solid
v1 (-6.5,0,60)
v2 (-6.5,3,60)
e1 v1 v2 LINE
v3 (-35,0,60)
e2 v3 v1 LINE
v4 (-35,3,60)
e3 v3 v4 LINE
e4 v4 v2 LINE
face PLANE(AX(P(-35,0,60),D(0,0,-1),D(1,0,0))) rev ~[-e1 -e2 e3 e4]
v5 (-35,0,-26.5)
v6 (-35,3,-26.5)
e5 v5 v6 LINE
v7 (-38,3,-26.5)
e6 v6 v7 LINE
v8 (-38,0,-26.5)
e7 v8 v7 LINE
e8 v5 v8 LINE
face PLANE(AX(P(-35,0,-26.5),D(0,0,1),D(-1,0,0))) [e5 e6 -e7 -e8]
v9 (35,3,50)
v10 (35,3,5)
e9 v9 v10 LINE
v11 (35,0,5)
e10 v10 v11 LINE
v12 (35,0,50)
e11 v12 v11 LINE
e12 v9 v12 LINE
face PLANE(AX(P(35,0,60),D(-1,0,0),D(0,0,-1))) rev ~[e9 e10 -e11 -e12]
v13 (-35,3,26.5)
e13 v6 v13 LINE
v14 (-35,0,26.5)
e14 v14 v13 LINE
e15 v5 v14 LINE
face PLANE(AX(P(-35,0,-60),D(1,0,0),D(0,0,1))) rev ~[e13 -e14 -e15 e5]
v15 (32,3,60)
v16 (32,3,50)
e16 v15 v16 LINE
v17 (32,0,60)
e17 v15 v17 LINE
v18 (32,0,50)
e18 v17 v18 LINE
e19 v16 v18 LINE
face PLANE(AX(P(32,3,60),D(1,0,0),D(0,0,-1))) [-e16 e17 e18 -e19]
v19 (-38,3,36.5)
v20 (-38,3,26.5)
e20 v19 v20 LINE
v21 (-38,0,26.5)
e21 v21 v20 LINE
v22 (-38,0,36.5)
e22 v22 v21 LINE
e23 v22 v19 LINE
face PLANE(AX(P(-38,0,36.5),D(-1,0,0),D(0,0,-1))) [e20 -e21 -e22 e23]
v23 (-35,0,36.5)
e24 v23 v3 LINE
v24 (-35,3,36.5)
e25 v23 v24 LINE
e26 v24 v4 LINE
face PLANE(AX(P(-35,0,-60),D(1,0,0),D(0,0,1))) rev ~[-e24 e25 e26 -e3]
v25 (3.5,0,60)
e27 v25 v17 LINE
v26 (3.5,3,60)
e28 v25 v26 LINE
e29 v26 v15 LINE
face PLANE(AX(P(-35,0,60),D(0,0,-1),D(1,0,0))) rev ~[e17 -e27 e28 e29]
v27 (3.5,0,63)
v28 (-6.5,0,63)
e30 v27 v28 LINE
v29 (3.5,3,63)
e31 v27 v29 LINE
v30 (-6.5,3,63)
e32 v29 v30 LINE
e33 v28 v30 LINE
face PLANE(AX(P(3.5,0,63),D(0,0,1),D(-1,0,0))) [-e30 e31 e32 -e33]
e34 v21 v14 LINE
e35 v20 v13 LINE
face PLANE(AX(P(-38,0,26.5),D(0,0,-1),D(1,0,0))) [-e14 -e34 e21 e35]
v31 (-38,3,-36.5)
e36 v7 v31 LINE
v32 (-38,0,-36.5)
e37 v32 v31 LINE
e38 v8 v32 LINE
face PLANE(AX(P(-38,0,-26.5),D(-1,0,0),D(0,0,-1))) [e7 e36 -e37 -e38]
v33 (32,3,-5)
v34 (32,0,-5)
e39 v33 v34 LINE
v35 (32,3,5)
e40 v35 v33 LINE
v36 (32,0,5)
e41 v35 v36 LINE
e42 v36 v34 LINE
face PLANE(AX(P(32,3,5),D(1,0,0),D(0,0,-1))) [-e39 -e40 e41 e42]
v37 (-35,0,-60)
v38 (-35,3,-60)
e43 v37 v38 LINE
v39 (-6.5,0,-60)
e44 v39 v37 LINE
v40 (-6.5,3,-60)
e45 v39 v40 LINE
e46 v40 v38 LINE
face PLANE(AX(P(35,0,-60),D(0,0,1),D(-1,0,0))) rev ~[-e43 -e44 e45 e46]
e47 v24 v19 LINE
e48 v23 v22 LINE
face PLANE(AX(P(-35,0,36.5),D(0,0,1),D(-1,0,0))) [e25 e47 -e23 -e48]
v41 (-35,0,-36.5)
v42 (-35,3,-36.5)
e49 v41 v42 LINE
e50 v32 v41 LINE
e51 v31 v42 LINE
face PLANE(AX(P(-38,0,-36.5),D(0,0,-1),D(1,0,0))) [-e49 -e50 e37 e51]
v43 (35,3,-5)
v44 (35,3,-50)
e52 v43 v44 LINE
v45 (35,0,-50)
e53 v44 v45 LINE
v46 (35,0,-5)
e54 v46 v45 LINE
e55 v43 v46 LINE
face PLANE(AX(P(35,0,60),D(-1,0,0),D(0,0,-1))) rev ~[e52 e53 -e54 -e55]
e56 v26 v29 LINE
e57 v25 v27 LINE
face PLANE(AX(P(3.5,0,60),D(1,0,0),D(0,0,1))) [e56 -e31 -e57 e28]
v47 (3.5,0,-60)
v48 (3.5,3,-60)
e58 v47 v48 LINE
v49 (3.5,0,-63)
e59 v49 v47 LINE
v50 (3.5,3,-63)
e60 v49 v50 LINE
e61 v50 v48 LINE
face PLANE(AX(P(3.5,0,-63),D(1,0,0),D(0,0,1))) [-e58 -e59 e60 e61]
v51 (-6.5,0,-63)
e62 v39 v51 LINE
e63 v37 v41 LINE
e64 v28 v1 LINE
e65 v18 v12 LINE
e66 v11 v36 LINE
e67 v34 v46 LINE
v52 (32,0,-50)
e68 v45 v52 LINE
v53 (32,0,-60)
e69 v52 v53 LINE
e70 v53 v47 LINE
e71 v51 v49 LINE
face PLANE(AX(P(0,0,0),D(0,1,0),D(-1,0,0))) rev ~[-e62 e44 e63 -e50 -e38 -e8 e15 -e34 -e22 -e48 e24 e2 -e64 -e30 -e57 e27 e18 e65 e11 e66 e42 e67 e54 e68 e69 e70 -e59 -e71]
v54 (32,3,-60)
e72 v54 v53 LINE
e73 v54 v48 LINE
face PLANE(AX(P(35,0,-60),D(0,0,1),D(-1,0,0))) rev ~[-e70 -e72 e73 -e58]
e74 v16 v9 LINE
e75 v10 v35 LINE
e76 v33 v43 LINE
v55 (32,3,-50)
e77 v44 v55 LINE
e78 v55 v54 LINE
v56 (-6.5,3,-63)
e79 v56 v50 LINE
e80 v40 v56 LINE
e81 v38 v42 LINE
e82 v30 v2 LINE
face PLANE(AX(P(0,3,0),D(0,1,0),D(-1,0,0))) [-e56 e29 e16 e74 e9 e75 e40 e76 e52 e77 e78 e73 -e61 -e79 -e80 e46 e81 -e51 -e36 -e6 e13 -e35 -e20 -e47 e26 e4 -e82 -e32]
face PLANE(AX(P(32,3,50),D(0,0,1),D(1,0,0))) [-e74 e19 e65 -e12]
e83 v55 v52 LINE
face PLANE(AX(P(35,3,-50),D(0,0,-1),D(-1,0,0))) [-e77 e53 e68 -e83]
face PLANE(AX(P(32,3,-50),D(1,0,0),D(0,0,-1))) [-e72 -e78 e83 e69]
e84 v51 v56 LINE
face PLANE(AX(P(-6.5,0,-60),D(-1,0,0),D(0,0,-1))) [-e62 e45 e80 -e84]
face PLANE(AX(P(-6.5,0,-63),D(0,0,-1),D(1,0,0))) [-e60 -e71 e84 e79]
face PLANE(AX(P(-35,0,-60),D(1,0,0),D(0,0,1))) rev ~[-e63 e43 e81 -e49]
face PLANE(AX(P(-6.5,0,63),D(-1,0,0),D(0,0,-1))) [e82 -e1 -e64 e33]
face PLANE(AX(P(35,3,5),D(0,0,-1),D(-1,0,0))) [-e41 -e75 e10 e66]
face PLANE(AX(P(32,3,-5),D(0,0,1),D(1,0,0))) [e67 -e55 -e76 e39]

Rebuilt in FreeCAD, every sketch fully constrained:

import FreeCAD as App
import Part
import Sketcher


def add_polygon(sketch, points):
    """Adds a closed chain of lines whose ends are joined by coincident constraints."""
    first, n = sketch.GeometryCount, len(points)
    for a, b in zip(points, points[1:] + points[:1]):
        sketch.addGeometry(Part.LineSegment(App.Vector(*a, 0), App.Vector(*b, 0)), False)
    for i in range(n):
        sketch.addConstraint(Sketcher.Constraint("Coincident", first + i, 2, first + (i + 1) % n, 1))

doc = App.newDocument("Part")
params = doc.addObject("Spreadsheet::Sheet", "Params")
for row, (alias, value) in enumerate([
    ("sketch1_width", "70 mm"),
    ("sketch1_height", "120 mm"),
    ("pad1_length", "3 mm"),
    ("sketch2_width", "3 mm"),
    ("sketch2_height", "10 mm"),
    ("sketch3_width", "10 mm"),
    ("sketch3_height", "3 mm"),
    ("pad2_length", "3 mm"),
    ("sketch4_width", "3 mm"),
    ("sketch4_height", "10 mm"),
    ("pad3_length", "3 mm"),
], start=1):
    params.set(f"A{row}", alias)
    params.set(f"B{row}", "=" + value)
    params.setAlias(f"B{row}", alias)

body = doc.addObject("PartDesign::Body", "Body")

sketch1 = body.newObject("Sketcher::SketchObject", "Sketch")
sketch1.AttachmentSupport = (doc.getObject("XZ_Plane"), [""])
sketch1.MapMode = "FlatFace"
add_polygon(sketch1, [(35, 60), (35, -60), (-35, -60), (-35, 60)])
sketch1.addConstraint(Sketcher.Constraint("Vertical", 0))
sketch1.addConstraint(Sketcher.Constraint("Horizontal", 1))
sketch1.addConstraint(Sketcher.Constraint("Vertical", 2))
sketch1.addConstraint(Sketcher.Constraint("Horizontal", 3))
sketch1.addConstraint(Sketcher.Constraint("Symmetric", 0, 2, 2, 2, -1, 1))
sketch1.addConstraint(Sketcher.Constraint("DistanceX", 1, 2, 1, 1, 70.0))
sketch1.addConstraint(Sketcher.Constraint("DistanceY", 0, 2, 0, 1, 120.0))
sketch1.setExpression("Constraints[9]", "Params.sketch1_width")
sketch1.setExpression("Constraints[10]", "Params.sketch1_height")
pad1 = body.newObject("PartDesign::Pad", "Pad")
pad1.Profile = sketch1
pad1.setExpression("Length", "Params.pad1_length")
pad1.Reversed = True

sketch2 = body.newObject("Sketcher::SketchObject", "Sketch001")
sketch2.AttachmentSupport = (doc.getObject("XZ_Plane"), [""])
sketch2.MapMode = "FlatFace"
sketch2.AttachmentOffset = App.Placement(App.Vector(0, 0, -3), App.Rotation())
add_polygon(sketch2, [(32, -50), (35, -50), (35, -60), (32, -60)])
add_polygon(sketch2, [(32, 5), (35, 5), (35, -5), (32, -5)])
add_polygon(sketch2, [(32, 60), (35, 60), (35, 50), (32, 50)])
sketch2.addConstraint(Sketcher.Constraint("Horizontal", 0))
sketch2.addConstraint(Sketcher.Constraint("Vertical", 1))
sketch2.addConstraint(Sketcher.Constraint("Horizontal", 2))
sketch2.addConstraint(Sketcher.Constraint("Vertical", 3))
sketch2.addConstraint(Sketcher.Constraint("Horizontal", 4))
sketch2.addConstraint(Sketcher.Constraint("Vertical", 5))
sketch2.addConstraint(Sketcher.Constraint("Horizontal", 6))
sketch2.addConstraint(Sketcher.Constraint("Vertical", 7))
sketch2.addConstraint(Sketcher.Constraint("Horizontal", 8))
sketch2.addConstraint(Sketcher.Constraint("Vertical", 9))
sketch2.addConstraint(Sketcher.Constraint("Horizontal", 10))
sketch2.addConstraint(Sketcher.Constraint("Vertical", 11))
sketch2.addConstraint(Sketcher.Constraint("Symmetric", 1, 2, 8, 2, -1))
sketch2.addConstraint(Sketcher.Constraint("Symmetric", 3, 2, 10, 2, -1))
sketch2.addConstraint(Sketcher.Constraint("Vertical", 1, 2, 4, 2))
sketch2.addConstraint(Sketcher.Constraint("Vertical", 3, 2, 6, 2))
sketch2.addConstraint(Sketcher.Constraint("Equal", 3, 5))
sketch2.addConstraint(Sketcher.Constraint("DistanceX", 0, 1, 0, 2, 3.0))
sketch2.addConstraint(Sketcher.Constraint("DistanceY", 1, 2, 1, 1, 10.0))
sketch2.addConstraint(Sketcher.Constraint("DistanceX", -1, 1, 0, 2, 35.0))
sketch2.addConstraint(Sketcher.Constraint("DistanceY", 0, 2, -1, 1, 50.0))
sketch2.addConstraint(Sketcher.Constraint("DistanceY", -1, 1, 4, 2, 5.0))
sketch2.setExpression("Constraints[29]", "Params.sketch2_width")
sketch2.setExpression("Constraints[30]", "Params.sketch2_height")
pocket1 = body.newObject("PartDesign::Pocket", "Pocket")
pocket1.Profile = sketch2
pocket1.Type = "ThroughAll"
pocket1.Reversed = True

sketch3 = body.newObject("Sketcher::SketchObject", "Sketch002")
sketch3.AttachmentSupport = (doc.getObject("XZ_Plane"), [""])
sketch3.MapMode = "FlatFace"
add_polygon(sketch3, [(3.5, -63), (3.5, -60), (-6.5, -60), (-6.5, -63)])
add_polygon(sketch3, [(3.5, 60), (3.5, 63), (-6.5, 63), (-6.5, 60)])
sketch3.addConstraint(Sketcher.Constraint("Vertical", 0))
sketch3.addConstraint(Sketcher.Constraint("Horizontal", 1))
sketch3.addConstraint(Sketcher.Constraint("Vertical", 2))
sketch3.addConstraint(Sketcher.Constraint("Horizontal", 3))
sketch3.addConstraint(Sketcher.Constraint("Vertical", 4))
sketch3.addConstraint(Sketcher.Constraint("Horizontal", 5))
sketch3.addConstraint(Sketcher.Constraint("Vertical", 6))
sketch3.addConstraint(Sketcher.Constraint("Horizontal", 7))
sketch3.addConstraint(Sketcher.Constraint("Symmetric", 3, 2, 4, 2, -1))
sketch3.addConstraint(Sketcher.Constraint("Symmetric", 1, 2, 6, 2, -1))
sketch3.addConstraint(Sketcher.Constraint("DistanceX", 1, 2, 1, 1, 10.0))
sketch3.addConstraint(Sketcher.Constraint("DistanceY", 0, 1, 0, 2, 3.0))
sketch3.addConstraint(Sketcher.Constraint("DistanceY", 0, 2, -1, 1, 60.0))
sketch3.addConstraint(Sketcher.Constraint("DistanceX", -1, 1, 0, 2, 3.5))
sketch3.setExpression("Constraints[18]", "Params.sketch3_width")
sketch3.setExpression("Constraints[19]", "Params.sketch3_height")
pad2 = body.newObject("PartDesign::Pad", "Pad001")
pad2.Profile = sketch3
pad2.setExpression("Length", "Params.pad2_length")
pad2.Reversed = True

sketch4 = body.newObject("Sketcher::SketchObject", "Sketch003")
sketch4.AttachmentSupport = (doc.getObject("XZ_Plane"), [""])
sketch4.MapMode = "FlatFace"
add_polygon(sketch4, [(-38, -26.5), (-38, -36.5), (-35, -36.5), (-35, -26.5)])
add_polygon(sketch4, [(-38, 26.5), (-35, 26.5), (-35, 36.5), (-38, 36.5)])
sketch4.addConstraint(Sketcher.Constraint("Vertical", 0))
sketch4.addConstraint(Sketcher.Constraint("Horizontal", 1))
sketch4.addConstraint(Sketcher.Constraint("Vertical", 2))
sketch4.addConstraint(Sketcher.Constraint("Horizontal", 3))
sketch4.addConstraint(Sketcher.Constraint("Horizontal", 4))
sketch4.addConstraint(Sketcher.Constraint("Vertical", 5))
sketch4.addConstraint(Sketcher.Constraint("Horizontal", 6))
sketch4.addConstraint(Sketcher.Constraint("Vertical", 7))
sketch4.addConstraint(Sketcher.Constraint("Symmetric", 2, 2, 4, 2, -1))
sketch4.addConstraint(Sketcher.Constraint("Symmetric", 0, 2, 6, 2, -1))
sketch4.addConstraint(Sketcher.Constraint("DistanceX", 1, 1, 1, 2, 3.0))
sketch4.addConstraint(Sketcher.Constraint("DistanceY", 0, 2, 0, 1, 10.0))
sketch4.addConstraint(Sketcher.Constraint("DistanceX", 0, 2, -1, 1, 38.0))
sketch4.addConstraint(Sketcher.Constraint("DistanceY", 2, 2, 4, 2, 53.0))
sketch4.setExpression("Constraints[18]", "Params.sketch4_width")
sketch4.setExpression("Constraints[19]", "Params.sketch4_height")
pad3 = body.newObject("PartDesign::Pad", "Pad002")
pad3.Profile = sketch4
pad3.setExpression("Length", "Params.pad3_length")
pad3.Reversed = True

doc.recompute()
